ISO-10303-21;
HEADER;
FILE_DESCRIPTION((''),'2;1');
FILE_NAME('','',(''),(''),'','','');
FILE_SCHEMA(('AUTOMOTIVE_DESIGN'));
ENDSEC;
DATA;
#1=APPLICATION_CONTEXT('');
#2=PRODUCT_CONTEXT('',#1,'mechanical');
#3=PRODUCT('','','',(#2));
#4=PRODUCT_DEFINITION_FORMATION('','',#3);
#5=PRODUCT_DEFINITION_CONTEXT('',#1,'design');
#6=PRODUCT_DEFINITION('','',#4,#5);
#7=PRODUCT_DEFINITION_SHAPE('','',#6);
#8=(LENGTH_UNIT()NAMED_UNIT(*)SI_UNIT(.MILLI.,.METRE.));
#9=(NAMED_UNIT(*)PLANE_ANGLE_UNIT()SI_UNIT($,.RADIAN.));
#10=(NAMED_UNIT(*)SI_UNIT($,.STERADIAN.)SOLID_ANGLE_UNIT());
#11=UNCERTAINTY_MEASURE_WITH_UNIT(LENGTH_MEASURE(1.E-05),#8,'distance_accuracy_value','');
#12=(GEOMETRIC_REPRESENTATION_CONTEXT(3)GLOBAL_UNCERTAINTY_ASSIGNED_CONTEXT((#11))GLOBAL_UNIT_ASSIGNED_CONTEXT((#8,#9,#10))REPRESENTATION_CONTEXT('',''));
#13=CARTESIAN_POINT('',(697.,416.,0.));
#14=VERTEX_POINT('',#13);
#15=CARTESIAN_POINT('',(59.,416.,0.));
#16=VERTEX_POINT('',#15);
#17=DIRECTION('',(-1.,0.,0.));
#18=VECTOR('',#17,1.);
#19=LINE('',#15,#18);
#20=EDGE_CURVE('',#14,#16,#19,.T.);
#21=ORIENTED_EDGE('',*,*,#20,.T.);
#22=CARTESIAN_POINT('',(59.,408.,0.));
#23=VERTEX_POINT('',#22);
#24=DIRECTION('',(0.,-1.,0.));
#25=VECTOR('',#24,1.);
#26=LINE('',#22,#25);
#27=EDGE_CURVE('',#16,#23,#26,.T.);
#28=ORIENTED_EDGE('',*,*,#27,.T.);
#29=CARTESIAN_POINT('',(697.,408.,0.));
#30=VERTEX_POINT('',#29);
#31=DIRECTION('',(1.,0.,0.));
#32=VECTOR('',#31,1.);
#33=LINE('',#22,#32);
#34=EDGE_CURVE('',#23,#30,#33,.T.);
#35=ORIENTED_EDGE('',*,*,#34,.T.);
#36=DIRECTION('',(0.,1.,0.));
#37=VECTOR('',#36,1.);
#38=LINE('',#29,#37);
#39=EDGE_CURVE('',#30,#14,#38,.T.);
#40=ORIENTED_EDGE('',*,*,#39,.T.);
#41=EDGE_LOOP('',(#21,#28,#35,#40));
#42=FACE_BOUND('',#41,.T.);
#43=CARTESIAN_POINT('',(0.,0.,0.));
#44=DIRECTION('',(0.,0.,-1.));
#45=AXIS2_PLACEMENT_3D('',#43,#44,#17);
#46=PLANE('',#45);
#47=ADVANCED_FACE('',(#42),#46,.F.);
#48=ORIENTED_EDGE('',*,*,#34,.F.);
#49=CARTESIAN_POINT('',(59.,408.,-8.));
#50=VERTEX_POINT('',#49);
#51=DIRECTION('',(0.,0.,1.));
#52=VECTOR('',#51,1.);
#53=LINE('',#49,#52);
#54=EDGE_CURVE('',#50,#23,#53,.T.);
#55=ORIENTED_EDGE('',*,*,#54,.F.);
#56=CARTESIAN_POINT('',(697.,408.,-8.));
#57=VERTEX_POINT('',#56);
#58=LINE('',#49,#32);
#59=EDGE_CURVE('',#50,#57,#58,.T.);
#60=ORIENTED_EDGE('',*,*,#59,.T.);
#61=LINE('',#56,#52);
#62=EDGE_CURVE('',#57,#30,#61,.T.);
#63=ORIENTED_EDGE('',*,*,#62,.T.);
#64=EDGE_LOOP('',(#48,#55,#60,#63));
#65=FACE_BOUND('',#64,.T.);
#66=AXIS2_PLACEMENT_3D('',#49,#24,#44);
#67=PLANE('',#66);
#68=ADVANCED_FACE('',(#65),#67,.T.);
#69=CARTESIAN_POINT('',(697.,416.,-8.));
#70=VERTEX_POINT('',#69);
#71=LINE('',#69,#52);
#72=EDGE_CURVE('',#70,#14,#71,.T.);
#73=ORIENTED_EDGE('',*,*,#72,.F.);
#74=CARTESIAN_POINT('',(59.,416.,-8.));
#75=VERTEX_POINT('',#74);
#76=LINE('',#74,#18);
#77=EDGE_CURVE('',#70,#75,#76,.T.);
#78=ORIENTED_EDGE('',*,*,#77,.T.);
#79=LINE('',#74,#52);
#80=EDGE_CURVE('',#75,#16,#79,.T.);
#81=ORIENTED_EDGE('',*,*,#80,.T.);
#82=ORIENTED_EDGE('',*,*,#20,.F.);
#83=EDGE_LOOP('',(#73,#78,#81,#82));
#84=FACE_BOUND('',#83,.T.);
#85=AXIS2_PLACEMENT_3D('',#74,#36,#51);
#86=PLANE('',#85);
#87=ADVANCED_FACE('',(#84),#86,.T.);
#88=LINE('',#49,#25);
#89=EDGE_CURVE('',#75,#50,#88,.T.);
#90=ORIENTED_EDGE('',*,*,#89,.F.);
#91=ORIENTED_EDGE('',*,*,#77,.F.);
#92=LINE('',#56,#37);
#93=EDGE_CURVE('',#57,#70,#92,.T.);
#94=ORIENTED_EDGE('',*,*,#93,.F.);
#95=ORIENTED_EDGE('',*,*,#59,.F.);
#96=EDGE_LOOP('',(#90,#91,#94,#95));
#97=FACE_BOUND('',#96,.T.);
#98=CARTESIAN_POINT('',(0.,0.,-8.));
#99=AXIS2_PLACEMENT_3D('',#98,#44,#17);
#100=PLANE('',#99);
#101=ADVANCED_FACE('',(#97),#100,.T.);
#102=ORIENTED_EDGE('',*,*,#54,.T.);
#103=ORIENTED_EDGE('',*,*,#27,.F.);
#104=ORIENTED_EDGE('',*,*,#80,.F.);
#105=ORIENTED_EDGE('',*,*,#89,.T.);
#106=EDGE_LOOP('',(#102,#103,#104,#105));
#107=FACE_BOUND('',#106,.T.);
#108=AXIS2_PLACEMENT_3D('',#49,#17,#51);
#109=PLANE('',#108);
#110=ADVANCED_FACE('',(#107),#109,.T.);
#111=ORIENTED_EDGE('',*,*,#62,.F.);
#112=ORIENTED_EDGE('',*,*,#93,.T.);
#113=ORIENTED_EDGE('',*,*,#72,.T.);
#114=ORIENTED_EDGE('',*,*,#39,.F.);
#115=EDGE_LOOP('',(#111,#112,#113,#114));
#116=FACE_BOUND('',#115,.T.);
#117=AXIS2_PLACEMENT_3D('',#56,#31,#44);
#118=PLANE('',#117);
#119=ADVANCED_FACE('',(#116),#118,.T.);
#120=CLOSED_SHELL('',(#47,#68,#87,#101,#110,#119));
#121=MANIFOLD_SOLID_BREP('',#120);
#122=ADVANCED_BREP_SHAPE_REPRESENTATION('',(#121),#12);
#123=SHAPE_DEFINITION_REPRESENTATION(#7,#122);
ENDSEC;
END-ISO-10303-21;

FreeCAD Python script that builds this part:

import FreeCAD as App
import Part
import Sketcher

doc = App.newDocument("Part")
params = doc.addObject("Spreadsheet::Sheet", "Params")
for row, (alias, value) in enumerate([
    ("sketch1_width", "638 mm"),
    ("sketch1_height", "8 mm"),
    ("pad1_length", "8 mm"),
], start=1):
    params.set(f"A{row}", alias)
    params.set(f"B{row}", "=" + value)
    params.setAlias(f"B{row}", alias)

body = doc.addObject("PartDesign::Body", "Body")

# Sketch on XY plane
sketch1 = body.newObject("Sketcher::SketchObject", "Sketch")
sketch1.AttachmentSupport = (doc.getObject("XY_Plane"), [""])
sketch1.MapMode = "FlatFace"
sketch1.addGeometry(Part.LineSegment(App.Vector(59, 416, 0), App.Vector(59, 408, 0)), False)
sketch1.addGeometry(Part.LineSegment(App.Vector(59, 408, 0), App.Vector(697, 408, 0)), False)
sketch1.addGeometry(Part.LineSegment(App.Vector(697, 408, 0), App.Vector(697, 416, 0)), False)
sketch1.addGeometry(Part.LineSegment(App.Vector(697, 416, 0), App.Vector(59, 416, 0)), False)
sketch1.addConstraint(Sketcher.Constraint("Coincident", 0, 2, 1, 1))
sketch1.addConstraint(Sketcher.Constraint("Coincident", 1, 2, 2, 1))
sketch1.addConstraint(Sketcher.Constraint("Coincident", 2, 2, 3, 1))
sketch1.addConstraint(Sketcher.Constraint("Coincident", 3, 2, 0, 1))
sketch1.addConstraint(Sketcher.Constraint("Vertical", 0))
sketch1.addConstraint(Sketcher.Constraint("Horizontal", 1))
sketch1.addConstraint(Sketcher.Constraint("Vertical", 2))
sketch1.addConstraint(Sketcher.Constraint("Horizontal", 3))
sketch1.addConstraint(Sketcher.Constraint("DistanceX", 1, 1, 1, 2, 638.0))
sketch1.addConstraint(Sketcher.Constraint("DistanceY", 0, 2, 0, 1, 8.0))
sketch1.addConstraint(Sketcher.Constraint("DistanceX", -1, 1, 0, 2, 59.0))
sketch1.addConstraint(Sketcher.Constraint("DistanceY", -1, 1, 0, 2, 408.0))
sketch1.setExpression("Constraints[8]", "Params.sketch1_width")
sketch1.setExpression("Constraints[9]", "Params.sketch1_height")
pad1 = body.newObject("PartDesign::Pad", "Pad")
pad1.Profile = sketch1
pad1.setExpression("Length", "Params.pad1_length")
pad1.Reversed = True

doc.recompute()
